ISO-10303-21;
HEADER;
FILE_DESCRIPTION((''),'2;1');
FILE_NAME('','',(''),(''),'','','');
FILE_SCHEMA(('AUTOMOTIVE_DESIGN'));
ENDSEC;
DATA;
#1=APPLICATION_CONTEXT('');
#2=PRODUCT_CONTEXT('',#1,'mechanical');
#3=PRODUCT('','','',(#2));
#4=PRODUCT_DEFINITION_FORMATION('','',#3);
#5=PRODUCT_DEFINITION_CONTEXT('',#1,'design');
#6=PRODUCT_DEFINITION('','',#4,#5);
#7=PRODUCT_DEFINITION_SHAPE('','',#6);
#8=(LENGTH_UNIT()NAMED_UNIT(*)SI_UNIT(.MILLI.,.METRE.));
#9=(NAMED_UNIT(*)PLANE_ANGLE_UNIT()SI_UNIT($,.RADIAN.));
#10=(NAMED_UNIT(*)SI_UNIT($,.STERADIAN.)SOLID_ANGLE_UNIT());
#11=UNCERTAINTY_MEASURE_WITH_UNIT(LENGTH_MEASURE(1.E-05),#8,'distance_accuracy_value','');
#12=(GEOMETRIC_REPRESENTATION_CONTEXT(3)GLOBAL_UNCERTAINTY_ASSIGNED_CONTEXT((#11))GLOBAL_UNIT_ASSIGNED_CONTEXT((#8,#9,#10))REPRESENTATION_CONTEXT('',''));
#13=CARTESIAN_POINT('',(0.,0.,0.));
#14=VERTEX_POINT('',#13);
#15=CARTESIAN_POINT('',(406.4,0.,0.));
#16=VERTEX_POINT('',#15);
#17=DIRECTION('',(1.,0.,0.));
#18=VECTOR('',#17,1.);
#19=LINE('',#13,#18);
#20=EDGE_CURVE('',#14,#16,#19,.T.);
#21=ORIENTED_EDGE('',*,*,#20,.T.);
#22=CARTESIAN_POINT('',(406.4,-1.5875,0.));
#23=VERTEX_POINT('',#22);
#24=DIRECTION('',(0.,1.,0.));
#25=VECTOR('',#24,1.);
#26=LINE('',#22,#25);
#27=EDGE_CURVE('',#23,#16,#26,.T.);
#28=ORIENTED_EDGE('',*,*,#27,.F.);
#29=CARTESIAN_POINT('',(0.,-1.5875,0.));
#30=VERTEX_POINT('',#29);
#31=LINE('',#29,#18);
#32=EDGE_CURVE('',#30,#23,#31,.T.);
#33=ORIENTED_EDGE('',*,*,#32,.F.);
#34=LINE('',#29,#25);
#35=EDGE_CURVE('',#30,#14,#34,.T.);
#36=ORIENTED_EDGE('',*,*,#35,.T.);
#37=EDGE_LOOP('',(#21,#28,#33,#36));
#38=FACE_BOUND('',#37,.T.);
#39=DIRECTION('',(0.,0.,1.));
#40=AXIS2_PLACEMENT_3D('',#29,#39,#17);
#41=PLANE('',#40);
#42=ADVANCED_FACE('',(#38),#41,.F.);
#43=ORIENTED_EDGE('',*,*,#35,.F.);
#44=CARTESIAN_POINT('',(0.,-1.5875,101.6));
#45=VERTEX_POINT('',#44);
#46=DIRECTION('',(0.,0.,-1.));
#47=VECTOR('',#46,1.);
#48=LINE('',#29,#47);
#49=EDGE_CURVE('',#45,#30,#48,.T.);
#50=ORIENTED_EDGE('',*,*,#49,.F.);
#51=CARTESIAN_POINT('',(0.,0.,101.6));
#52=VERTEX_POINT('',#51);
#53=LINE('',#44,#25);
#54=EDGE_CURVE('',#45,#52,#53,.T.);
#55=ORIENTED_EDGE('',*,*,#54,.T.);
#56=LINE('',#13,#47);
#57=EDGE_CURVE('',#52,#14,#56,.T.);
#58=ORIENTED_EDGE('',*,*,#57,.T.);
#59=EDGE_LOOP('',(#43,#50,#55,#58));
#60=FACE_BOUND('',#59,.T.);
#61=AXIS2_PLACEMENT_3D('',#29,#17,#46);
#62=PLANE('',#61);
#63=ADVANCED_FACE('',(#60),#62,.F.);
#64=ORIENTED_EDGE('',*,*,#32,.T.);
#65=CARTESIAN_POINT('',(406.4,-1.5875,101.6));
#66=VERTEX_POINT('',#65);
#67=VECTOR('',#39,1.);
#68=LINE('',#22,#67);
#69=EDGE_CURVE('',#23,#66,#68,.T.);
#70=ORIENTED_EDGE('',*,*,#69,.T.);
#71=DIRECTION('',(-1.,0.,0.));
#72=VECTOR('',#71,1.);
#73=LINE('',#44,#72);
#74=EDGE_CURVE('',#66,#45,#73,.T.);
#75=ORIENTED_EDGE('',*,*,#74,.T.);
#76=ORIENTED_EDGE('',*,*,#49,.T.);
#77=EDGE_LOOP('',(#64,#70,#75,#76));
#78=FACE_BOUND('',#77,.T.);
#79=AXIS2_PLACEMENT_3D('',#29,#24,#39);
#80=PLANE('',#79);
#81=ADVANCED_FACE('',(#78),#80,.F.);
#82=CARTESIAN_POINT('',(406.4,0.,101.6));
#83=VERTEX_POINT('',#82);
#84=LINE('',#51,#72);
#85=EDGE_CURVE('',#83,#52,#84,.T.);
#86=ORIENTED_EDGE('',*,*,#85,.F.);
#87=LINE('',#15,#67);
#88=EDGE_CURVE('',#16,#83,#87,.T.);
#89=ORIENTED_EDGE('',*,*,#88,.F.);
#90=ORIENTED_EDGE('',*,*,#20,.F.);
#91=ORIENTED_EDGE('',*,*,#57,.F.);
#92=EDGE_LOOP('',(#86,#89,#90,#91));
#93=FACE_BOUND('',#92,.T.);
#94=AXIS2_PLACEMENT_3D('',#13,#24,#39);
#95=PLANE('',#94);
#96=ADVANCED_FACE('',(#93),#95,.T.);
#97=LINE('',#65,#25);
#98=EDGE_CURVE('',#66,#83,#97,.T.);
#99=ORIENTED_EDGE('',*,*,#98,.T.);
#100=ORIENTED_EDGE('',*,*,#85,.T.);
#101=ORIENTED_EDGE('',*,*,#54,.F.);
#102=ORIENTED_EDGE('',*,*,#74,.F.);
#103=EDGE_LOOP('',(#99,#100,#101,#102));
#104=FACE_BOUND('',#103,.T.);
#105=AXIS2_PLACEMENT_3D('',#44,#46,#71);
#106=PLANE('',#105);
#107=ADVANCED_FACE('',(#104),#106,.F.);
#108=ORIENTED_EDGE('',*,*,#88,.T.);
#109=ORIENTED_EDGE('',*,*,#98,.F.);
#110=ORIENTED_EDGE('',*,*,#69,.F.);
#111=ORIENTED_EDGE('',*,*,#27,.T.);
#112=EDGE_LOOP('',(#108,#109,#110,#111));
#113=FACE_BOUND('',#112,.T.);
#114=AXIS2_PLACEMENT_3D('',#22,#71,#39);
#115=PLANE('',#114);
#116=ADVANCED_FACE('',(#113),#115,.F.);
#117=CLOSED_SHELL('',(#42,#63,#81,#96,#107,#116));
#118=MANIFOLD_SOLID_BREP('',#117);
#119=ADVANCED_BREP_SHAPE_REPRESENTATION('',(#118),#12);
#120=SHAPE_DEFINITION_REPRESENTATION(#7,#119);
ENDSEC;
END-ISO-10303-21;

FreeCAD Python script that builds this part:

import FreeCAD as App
import Part
import Sketcher

V = App.Vector
Q = App.Units.Quantity


def add_polygon(sketch, points):
    """Adds a closed chain of lines whose ends are joined by coincident constraints."""
    first, n = sketch.GeometryCount, len(points)
    for a, b in zip(points, points[1:] + points[:1]):
        sketch.addGeometry(Part.LineSegment(App.Vector(*a, 0), App.Vector(*b, 0)), False)
    for i in range(n):
        sketch.addConstraint(Sketcher.Constraint("Coincident", first + i, 2, first + (i + 1) % n, 1))

doc = App.newDocument("Part")
body = doc.addObject("PartDesign::Body", "Body")

sketch1 = body.newObject("Sketcher::SketchObject", "Sketch")
sketch1.AttachmentSupport = (doc.getObject("XZ_Plane"), [""])
sketch1.MapMode = "FlatFace"
add_polygon(sketch1, [(0, 102), (0, 0), (406, 0), (406, 102)])
sketch1.addConstraint(Sketcher.Constraint("Vertical", 0))
sketch1.addConstraint(Sketcher.Constraint("Horizontal", 1))
sketch1.addConstraint(Sketcher.Constraint("Vertical", 2))
sketch1.addConstraint(Sketcher.Constraint("Horizontal", 3))
sketch1.addConstraint(Sketcher.Constraint("Coincident", 0, 2, -1, 1))
sketch1.addConstraint(Sketcher.Constraint("DistanceX", 1, 1, 1, 2, Q("16 in")))
sketch1.addConstraint(Sketcher.Constraint("DistanceY", 0, 2, 0, 1, Q("4 in")))
pad1 = body.newObject("PartDesign::Pad", "Pad")
pad1.Profile = sketch1
pad1.Length = Q("0.0625 in")

doc.recompute()
